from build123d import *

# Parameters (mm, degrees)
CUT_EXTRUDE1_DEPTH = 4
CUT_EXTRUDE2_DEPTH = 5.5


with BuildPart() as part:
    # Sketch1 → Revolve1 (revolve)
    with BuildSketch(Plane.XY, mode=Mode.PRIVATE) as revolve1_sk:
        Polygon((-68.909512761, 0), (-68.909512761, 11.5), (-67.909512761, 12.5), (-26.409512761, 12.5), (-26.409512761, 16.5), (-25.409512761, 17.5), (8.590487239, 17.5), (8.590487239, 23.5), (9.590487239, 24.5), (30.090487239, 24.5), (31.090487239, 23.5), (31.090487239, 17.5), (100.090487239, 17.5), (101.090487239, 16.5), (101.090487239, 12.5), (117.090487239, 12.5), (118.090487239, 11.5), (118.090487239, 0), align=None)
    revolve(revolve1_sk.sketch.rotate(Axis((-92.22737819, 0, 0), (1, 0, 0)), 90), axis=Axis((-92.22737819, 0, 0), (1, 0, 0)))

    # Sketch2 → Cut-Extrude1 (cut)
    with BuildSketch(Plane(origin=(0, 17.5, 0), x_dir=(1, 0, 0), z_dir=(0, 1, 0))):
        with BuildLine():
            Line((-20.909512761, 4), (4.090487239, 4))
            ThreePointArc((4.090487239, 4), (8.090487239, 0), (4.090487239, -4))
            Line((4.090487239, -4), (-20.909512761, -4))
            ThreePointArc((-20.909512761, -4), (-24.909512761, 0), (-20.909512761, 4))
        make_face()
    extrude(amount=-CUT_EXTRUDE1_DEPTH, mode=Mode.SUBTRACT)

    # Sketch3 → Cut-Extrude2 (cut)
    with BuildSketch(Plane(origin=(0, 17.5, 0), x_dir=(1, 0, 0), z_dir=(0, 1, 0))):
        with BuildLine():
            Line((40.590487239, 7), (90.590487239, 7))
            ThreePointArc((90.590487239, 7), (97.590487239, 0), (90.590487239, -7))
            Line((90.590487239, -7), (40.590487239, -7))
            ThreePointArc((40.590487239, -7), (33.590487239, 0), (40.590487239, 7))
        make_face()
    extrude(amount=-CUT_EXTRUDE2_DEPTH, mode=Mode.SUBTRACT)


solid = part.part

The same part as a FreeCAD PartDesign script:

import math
import FreeCAD as App
import Part
import Sketcher

V = App.Vector
Q = App.Units.Quantity


def add_polygon(sketch, points):
    """Adds a closed chain of lines whose ends are joined by coincident constraints."""
    first, n = sketch.GeometryCount, len(points)
    for a, b in zip(points, points[1:] + points[:1]):
        sketch.addGeometry(Part.LineSegment(App.Vector(*a, 0), App.Vector(*b, 0)), False)
    for i in range(n):
        sketch.addConstraint(Sketcher.Constraint("Coincident", first + i, 2, first + (i + 1) % n, 1))

doc = App.newDocument("Part")
body = doc.addObject("PartDesign::Body", "Body")

# Sketch on XY plane
sketch1 = body.newObject("Sketcher::SketchObject", "Sketch")
sketch1.AttachmentSupport = (doc.getObject("XY_Plane"), [""])
sketch1.MapMode = "FlatFace"
add_polygon(sketch1, [(-68.9, 11.5), (-68.9, 0), (118.1, 0), (118.1, 11.5), (117.1, 12.5), (101.1, 12.5), (101.1, 16.5), (100.1, 17.5), (31.1, 17.5), (31.1, 23.5), (30.1, 24.5), (9.6, 24.5), (8.6, 23.5), (8.6, 17.5), (-25.4, 17.5), (-26.4, 16.5), (-26.4, 12.5), (-67.9, 12.5)])  # lines 0-17
sketch1.addConstraint(Sketcher.Constraint("Vertical", 0))
sketch1.addConstraint(Sketcher.Constraint("Horizontal", 1))
sketch1.addConstraint(Sketcher.Constraint("Vertical", 2))
sketch1.addConstraint(Sketcher.Constraint("Horizontal", 4))
sketch1.addConstraint(Sketcher.Constraint("Vertical", 5))
sketch1.addConstraint(Sketcher.Constraint("Horizontal", 7))
sketch1.addConstraint(Sketcher.Constraint("Vertical", 8))
sketch1.addConstraint(Sketcher.Constraint("Horizontal", 10))
sketch1.addConstraint(Sketcher.Constraint("Vertical", 12))
sketch1.addConstraint(Sketcher.Constraint("Horizontal", 13))
sketch1.addConstraint(Sketcher.Constraint("Vertical", 15))
sketch1.addConstraint(Sketcher.Constraint("Horizontal", 16))
sketch1.addConstraint(Sketcher.Constraint("PointOnObject", 0, 2, -1))
sketch1.addConstraint(Sketcher.Constraint("Parallel", 3, 6))
sketch1.addConstraint(Sketcher.Constraint("Parallel", 6, 9))
sketch1.addConstraint(Sketcher.Constraint("Perpendicular", 9, 11))
sketch1.addConstraint(Sketcher.Constraint("Parallel", 11, 14))
sketch1.addConstraint(Sketcher.Constraint("Parallel", 14, 17))
sketch1.addConstraint(Sketcher.Constraint("Horizontal", 8, 2, 11, 2))
sketch1.addConstraint(Sketcher.Constraint("Horizontal", 7, 2, 12, 2))
sketch1.addConstraint(Sketcher.Constraint("Horizontal", 5, 2, 14, 2))
sketch1.addConstraint(Sketcher.Constraint("Horizontal", 4, 2, 15, 2))
sketch1.addConstraint(Sketcher.Constraint("Horizontal", 2, 2, 17, 2))
sketch1.addConstraint(Sketcher.Constraint("Equal", 3, 6))
sketch1.addConstraint(Sketcher.Constraint("Equal", 6, 9))
sketch1.addConstraint(Sketcher.Constraint("Equal", 9, 11))
sketch1.addConstraint(Sketcher.Constraint("DistanceX", 1, 1, 1, 2, Q("187 mm")))
sketch1.addConstraint(Sketcher.Constraint("DistanceX", 4, 2, 4, 1, Q("16 mm")))
sketch1.addConstraint(Sketcher.Constraint("DistanceX", 7, 2, 7, 1, Q("69 mm")))
sketch1.addConstraint(Sketcher.Constraint("DistanceX", 13, 2, 13, 1, Q("34 mm")))
sketch1.addConstraint(Sketcher.Constraint("DistanceY", 5, 1, 5, 2, Q("4 mm")))
sketch1.addConstraint(Sketcher.Constraint("DistanceY", 8, 1, 8, 2, Q("6 mm")))
sketch1.addConstraint(Sketcher.Constraint("DistanceX", 10, 2, 10, 1, Q("20.5 mm")))
sketch1.addConstraint(Sketcher.Constraint("DistanceX", 16, 2, 16, 1, Q("41.5 mm")))
sketch1.addConstraint(Sketcher.Constraint("DistanceY", 0, 2, 0, 1, Q("11.5 mm")))
sketch1.addConstraint(Sketcher.Constraint("DistanceX", 0, 2, -1, 1, Q("68.909513 mm")))
revolution = body.newObject("PartDesign::Revolution", "Revolution")
revolution.Profile = sketch1
revolution.ReferenceAxis = (sketch1, ["H_Axis"])
revolution.Angle = 360

# Sketch on XZ plane
sketch2 = body.newObject("Sketcher::SketchObject", "Sketch001")
sketch2.AttachmentSupport = (doc.getObject("XZ_Plane"), [""])
sketch2.MapMode = "FlatFace"
sketch2.AttachmentOffset = App.Placement(V(0, 0, -17.5), App.Rotation())
sketch2.addGeometry(Part.LineSegment(V(4.1, -4, 0), V(-20.9, -4, 0)), False)
sketch2.addGeometry(Part.ArcOfCircle(Part.Circle(V(-20.9, 0, 0), V(0, 0, 1), 4), math.radians(90), math.radians(270)), False)
sketch2.addGeometry(Part.LineSegment(V(-20.9, 4, 0), V(4.1, 4, 0)), False)
sketch2.addGeometry(Part.ArcOfCircle(Part.Circle(V(4.1, 0, 0), V(0, 0, 1), 4), math.radians(-90), math.radians(90)), False)
sketch2.addConstraint(Sketcher.Constraint("Tangent", 0, 2, 1, 2))
sketch2.addConstraint(Sketcher.Constraint("Tangent", 1, 1, 2, 1))
sketch2.addConstraint(Sketcher.Constraint("Tangent", 2, 2, 3, 2))
sketch2.addConstraint(Sketcher.Constraint("Tangent", 3, 1, 0, 1))
sketch2.addConstraint(Sketcher.Constraint("Horizontal", 0))
sketch2.addConstraint(Sketcher.Constraint("Horizontal", 2))
sketch2.addConstraint(Sketcher.Constraint("PointOnObject", 1, 3, -1))
sketch2.addConstraint(Sketcher.Constraint("Radius", 1, Q("4 mm")))
sketch2.addConstraint(Sketcher.Constraint("DistanceX", 0, 2, 0, 1, Q("25 mm")))
sketch2.addConstraint(Sketcher.Constraint("DistanceX", 1, 3, -1, 1, Q("20.909513 mm")))
pocket1 = body.newObject("PartDesign::Pocket", "Pocket")
pocket1.Profile = sketch2
pocket1.Length = 4
pocket1.Reversed = True

# Sketch on XZ plane
sketch3 = body.newObject("Sketcher::SketchObject", "Sketch002")
sketch3.AttachmentSupport = (doc.getObject("XZ_Plane"), [""])
sketch3.MapMode = "FlatFace"
sketch3.AttachmentOffset = App.Placement(V(0, 0, -17.5), App.Rotation())
sketch3.addGeometry(Part.LineSegment(V(91, -7, 0), V(41, -7, 0)), False)
sketch3.addGeometry(Part.ArcOfCircle(Part.Circle(V(41, 0, 0), V(0, 0, 1), 7), math.radians(90), math.radians(270)), False)
sketch3.addGeometry(Part.LineSegment(V(41, 7, 0), V(91, 7, 0)), False)
sketch3.addGeometry(Part.ArcOfCircle(Part.Circle(V(91, 0, 0), V(0, 0, 1), 7), math.radians(-90), math.radians(90)), False)
sketch3.addConstraint(Sketcher.Constraint("Tangent", 0, 2, 1, 2))
sketch3.addConstraint(Sketcher.Constraint("Tangent", 1, 1, 2, 1))
sketch3.addConstraint(Sketcher.Constraint("Tangent", 2, 2, 3, 2))
sketch3.addConstraint(Sketcher.Constraint("Tangent", 3, 1, 0, 1))
sketch3.addConstraint(Sketcher.Constraint("Horizontal", 0))
sketch3.addConstraint(Sketcher.Constraint("Horizontal", 2))
sketch3.addConstraint(Sketcher.Constraint("PointOnObject", 1, 3, -1))
sketch3.addConstraint(Sketcher.Constraint("Radius", 1, Q("7 mm")))
sketch3.addConstraint(Sketcher.Constraint("DistanceX", 0, 2, 0, 1, Q("50 mm")))
sketch3.addConstraint(Sketcher.Constraint("DistanceX", -1, 1, 1, 3, Q("40.590487 mm")))
pocket2 = body.newObject("PartDesign::Pocket", "Pocket001")
pocket2.Profile = sketch3
pocket2.Length = 5.5
pocket2.Reversed = True

doc.recompute()
